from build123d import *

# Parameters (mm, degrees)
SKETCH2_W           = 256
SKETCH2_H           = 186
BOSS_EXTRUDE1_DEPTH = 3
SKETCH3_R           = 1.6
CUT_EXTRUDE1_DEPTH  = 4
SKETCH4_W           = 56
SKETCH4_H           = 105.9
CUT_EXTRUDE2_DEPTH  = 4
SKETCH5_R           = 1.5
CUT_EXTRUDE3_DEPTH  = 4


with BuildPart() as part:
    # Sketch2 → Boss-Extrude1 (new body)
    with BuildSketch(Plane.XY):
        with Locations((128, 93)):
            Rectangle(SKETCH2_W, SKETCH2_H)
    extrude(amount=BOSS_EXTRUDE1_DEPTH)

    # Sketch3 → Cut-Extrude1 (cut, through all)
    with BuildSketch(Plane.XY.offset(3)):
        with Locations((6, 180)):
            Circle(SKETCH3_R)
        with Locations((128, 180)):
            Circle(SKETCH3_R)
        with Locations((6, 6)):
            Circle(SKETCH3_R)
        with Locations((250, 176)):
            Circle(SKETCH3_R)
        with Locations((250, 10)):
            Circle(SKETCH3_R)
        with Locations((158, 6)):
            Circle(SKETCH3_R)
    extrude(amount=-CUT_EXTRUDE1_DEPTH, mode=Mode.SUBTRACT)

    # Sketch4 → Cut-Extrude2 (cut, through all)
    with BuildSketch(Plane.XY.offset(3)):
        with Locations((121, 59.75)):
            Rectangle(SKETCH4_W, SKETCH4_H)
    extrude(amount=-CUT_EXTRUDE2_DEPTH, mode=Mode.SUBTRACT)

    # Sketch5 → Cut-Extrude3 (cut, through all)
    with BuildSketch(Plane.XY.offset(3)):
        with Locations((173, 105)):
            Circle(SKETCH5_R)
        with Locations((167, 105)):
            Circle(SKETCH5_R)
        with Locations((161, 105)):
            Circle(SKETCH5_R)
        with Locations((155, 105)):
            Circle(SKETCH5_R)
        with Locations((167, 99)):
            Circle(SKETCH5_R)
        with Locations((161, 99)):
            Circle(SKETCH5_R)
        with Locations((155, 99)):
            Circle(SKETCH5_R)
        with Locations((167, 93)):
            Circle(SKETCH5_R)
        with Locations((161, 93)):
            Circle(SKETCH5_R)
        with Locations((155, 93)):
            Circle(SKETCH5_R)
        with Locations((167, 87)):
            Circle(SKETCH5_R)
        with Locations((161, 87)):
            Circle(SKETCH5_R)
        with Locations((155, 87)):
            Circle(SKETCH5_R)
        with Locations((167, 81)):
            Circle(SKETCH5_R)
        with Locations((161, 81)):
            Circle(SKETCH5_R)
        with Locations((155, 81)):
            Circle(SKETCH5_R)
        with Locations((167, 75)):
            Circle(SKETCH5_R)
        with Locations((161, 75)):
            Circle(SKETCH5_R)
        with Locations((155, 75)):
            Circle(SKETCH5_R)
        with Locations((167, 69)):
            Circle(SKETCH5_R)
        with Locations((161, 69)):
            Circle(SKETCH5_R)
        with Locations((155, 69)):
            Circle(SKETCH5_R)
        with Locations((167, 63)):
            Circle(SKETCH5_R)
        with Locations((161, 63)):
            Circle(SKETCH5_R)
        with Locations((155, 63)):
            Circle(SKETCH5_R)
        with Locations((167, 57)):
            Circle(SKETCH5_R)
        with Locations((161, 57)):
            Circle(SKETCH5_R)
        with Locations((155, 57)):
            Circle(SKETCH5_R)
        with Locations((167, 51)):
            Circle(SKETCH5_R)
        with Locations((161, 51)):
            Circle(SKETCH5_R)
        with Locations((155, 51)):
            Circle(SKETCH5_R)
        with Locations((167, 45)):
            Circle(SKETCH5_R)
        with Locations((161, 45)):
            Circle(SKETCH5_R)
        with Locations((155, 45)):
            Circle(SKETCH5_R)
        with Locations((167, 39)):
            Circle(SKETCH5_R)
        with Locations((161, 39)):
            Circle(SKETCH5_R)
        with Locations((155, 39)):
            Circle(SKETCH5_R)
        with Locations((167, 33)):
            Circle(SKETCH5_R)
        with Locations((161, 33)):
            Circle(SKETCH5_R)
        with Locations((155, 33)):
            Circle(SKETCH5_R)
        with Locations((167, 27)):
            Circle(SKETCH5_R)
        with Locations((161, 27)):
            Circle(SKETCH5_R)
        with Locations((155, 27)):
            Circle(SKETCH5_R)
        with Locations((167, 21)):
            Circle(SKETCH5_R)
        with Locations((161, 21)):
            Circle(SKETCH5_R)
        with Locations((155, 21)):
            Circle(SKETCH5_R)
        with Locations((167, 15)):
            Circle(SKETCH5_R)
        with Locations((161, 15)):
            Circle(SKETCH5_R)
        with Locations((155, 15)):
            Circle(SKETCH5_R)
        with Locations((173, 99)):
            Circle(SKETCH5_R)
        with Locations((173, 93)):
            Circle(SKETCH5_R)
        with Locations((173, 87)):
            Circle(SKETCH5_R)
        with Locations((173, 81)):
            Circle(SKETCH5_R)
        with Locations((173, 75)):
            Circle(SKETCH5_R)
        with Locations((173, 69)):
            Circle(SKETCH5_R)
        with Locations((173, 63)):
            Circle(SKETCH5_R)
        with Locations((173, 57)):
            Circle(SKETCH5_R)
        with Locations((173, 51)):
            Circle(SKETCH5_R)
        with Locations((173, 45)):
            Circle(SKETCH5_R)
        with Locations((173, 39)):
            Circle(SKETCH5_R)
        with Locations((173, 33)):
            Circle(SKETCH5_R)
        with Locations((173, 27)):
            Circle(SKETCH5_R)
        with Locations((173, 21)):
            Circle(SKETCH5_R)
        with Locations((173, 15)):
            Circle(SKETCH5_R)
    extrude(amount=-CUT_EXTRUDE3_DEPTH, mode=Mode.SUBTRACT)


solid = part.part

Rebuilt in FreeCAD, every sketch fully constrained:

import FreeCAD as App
import Part
import Sketcher
from FreeCAD import Vector
Q = App.Units.Quantity


def add_polygon(sketch, points):
    """Adds a closed chain of lines whose ends are joined by coincident constraints."""
    first, n = sketch.GeometryCount, len(points)
    for a, b in zip(points, points[1:] + points[:1]):
        sketch.addGeometry(Part.LineSegment(App.Vector(*a, 0), App.Vector(*b, 0)), False)
    for i in range(n):
        sketch.addConstraint(Sketcher.Constraint("Coincident", first + i, 2, first + (i + 1) % n, 1))

doc = App.newDocument("Part")
body = doc.addObject("PartDesign::Body", "Body")

sketch1 = doc.addObject("Sketcher::SketchObject", "Sketch")
body.addObject(sketch1)
sketch1.AttachmentSupport = (doc.XY_Plane, [""])
sketch1.MapMode = "FlatFace"
add_polygon(sketch1, [(0, 186), (0, 0), (256, 0), (256, 186)])
sketch1.addConstraint([
    Sketcher.Constraint("Vertical", 0),
    Sketcher.Constraint("Horizontal", 1),
    Sketcher.Constraint("Vertical", 2),
    Sketcher.Constraint("Horizontal", 3),
    Sketcher.Constraint("Coincident", 0, 2, -1, 1),
    Sketcher.Constraint("DistanceX", 1, 1, 1, 2, Q("256 mm")),
    Sketcher.Constraint("DistanceY", 0, 2, 0, 1, Q("186 mm")),
])
pad1 = doc.addObject("PartDesign::Pad", "Pad")
body.addObject(pad1)
pad1.Profile = sketch1
pad1.Length = 3

sketch2 = doc.addObject("Sketcher::SketchObject", "Sketch001")
body.addObject(sketch2)
sketch2.AttachmentSupport = (doc.XY_Plane, [""])
sketch2.MapMode = "FlatFace"
sketch2.AttachmentOffset = App.Placement(Vector(0, 0, 3), App.Rotation())
sketch2.addGeometry([
    Part.Circle(Vector(6, 180, 0), Vector(0, 0, 1), 1.6),
    Part.Circle(Vector(128, 180, 0), Vector(0, 0, 1), 1.6),
    Part.Circle(Vector(6, 6, 0), Vector(0, 0, 1), 1.6),
    Part.Circle(Vector(250, 176, 0), Vector(0, 0, 1), 1.6),
    Part.Circle(Vector(250, 10, 0), Vector(0, 0, 1), 1.6),
    Part.Circle(Vector(158, 6, 0), Vector(0, 0, 1), 1.6),
], False)
sketch2.addConstraint([
    Sketcher.Constraint("Equal", 0, 1),
    Sketcher.Constraint("Equal", 1, 2),
    Sketcher.Constraint("Equal", 2, 3),
    Sketcher.Constraint("Equal", 3, 4),
    Sketcher.Constraint("Equal", 4, 5),
    Sketcher.Constraint("Horizontal", 0, 3, 1, 3),
    Sketcher.Constraint("Horizontal", 2, 3, 5, 3),
    Sketcher.Constraint("Vertical", 0, 3, 2, 3),
    Sketcher.Constraint("Vertical", 3, 3, 4, 3),
    Sketcher.Constraint("Diameter", 0, Q("3.2 mm")),
    Sketcher.Constraint("DistanceX", -1, 1, 0, 3, Q("6 mm")),
    Sketcher.Constraint("DistanceY", -1, 1, 0, 3, Q("180 mm")),
    Sketcher.Constraint("DistanceX", -1, 1, 1, 3, Q("128 mm")),
    Sketcher.Constraint("DistanceY", -1, 1, 2, 3, Q("6 mm")),
    Sketcher.Constraint("DistanceX", -1, 1, 3, 3, Q("250 mm")),
    Sketcher.Constraint("DistanceY", -1, 1, 3, 3, Q("176 mm")),
    Sketcher.Constraint("DistanceY", -1, 1, 4, 3, Q("10 mm")),
    Sketcher.Constraint("DistanceX", -1, 1, 5, 3, Q("158 mm")),
])
pocket1 = doc.addObject("PartDesign::Pocket", "Pocket")
body.addObject(pocket1)
pocket1.Profile = sketch2
pocket1.Type = "ThroughAll"

sketch3 = doc.addObject("Sketcher::SketchObject", "Sketch002")
body.addObject(sketch3)
sketch3.AttachmentSupport = (doc.XY_Plane, [""])
sketch3.MapMode = "FlatFace"
sketch3.AttachmentOffset = App.Placement(Vector(0, 0, 3), App.Rotation())
add_polygon(sketch3, [(93, 113), (93, 7), (149, 7), (149, 113)])
sketch3.addConstraint([
    Sketcher.Constraint("Vertical", 0),
    Sketcher.Constraint("Horizontal", 1),
    Sketcher.Constraint("Vertical", 2),
    Sketcher.Constraint("Horizontal", 3),
    Sketcher.Constraint("DistanceX", 1, 1, 1, 2, Q("56 mm")),
    Sketcher.Constraint("DistanceY", 0, 2, 0, 1, Q("105.9 mm")),
    Sketcher.Constraint("DistanceX", -1, 1, 0, 2, Q("93 mm")),
    Sketcher.Constraint("DistanceY", -1, 1, 0, 2, Q("6.8 mm")),
])
pocket2 = doc.addObject("PartDesign::Pocket", "Pocket001")
body.addObject(pocket2)
pocket2.Profile = sketch3
pocket2.Type = "ThroughAll"

sketch4 = doc.addObject("Sketcher::SketchObject", "Sketch003")
body.addObject(sketch4)
sketch4.AttachmentSupport = (doc.XY_Plane, [""])
sketch4.MapMode = "FlatFace"
sketch4.AttachmentOffset = App.Placement(Vector(0, 0, 3), App.Rotation())
sketch4.addGeometry([
    Part.Circle(Vector(173, 105, 0), Vector(0, 0, 1), 1.5),
    Part.Circle(Vector(167, 105, 0), Vector(0, 0, 1), 1.5),
    Part.Circle(Vector(161, 105, 0), Vector(0, 0, 1), 1.5),
    Part.Circle(Vector(155, 105, 0), Vector(0, 0, 1), 1.5),
    Part.Circle(Vector(167, 99, 0), Vector(0, 0, 1), 1.5),
    Part.Circle(Vector(161, 99, 0), Vector(0, 0, 1), 1.5),
    Part.Circle(Vector(155, 99, 0), Vector(0, 0, 1), 1.5),
    Part.Circle(Vector(167, 93, 0), Vector(0, 0, 1), 1.5),
    Part.Circle(Vector(161, 93, 0), Vector(0, 0, 1), 1.5),
    Part.Circle(Vector(155, 93, 0), Vector(0, 0, 1), 1.5),
    Part.Circle(Vector(167, 87, 0), Vector(0, 0, 1), 1.5),
    Part.Circle(Vector(161, 87, 0), Vector(0, 0, 1), 1.5),
    Part.Circle(Vector(155, 87, 0), Vector(0, 0, 1), 1.5),
    Part.Circle(Vector(167, 81, 0), Vector(0, 0, 1), 1.5),
    Part.Circle(Vector(161, 81, 0), Vector(0, 0, 1), 1.5),
    Part.Circle(Vector(155, 81, 0), Vector(0, 0, 1), 1.5),
    Part.Circle(Vector(167, 75, 0), Vector(0, 0, 1), 1.5),
    Part.Circle(Vector(161, 75, 0), Vector(0, 0, 1), 1.5),
    Part.Circle(Vector(155, 75, 0), Vector(0, 0, 1), 1.5),
    Part.Circle(Vector(167, 69, 0), Vector(0, 0, 1), 1.5),
    Part.Circle(Vector(161, 69, 0), Vector(0, 0, 1), 1.5),
    Part.Circle(Vector(155, 69, 0), Vector(0, 0, 1), 1.5),
    Part.Circle(Vector(167, 63, 0), Vector(0, 0, 1), 1.5),
    Part.Circle(Vector(161, 63, 0), Vector(0, 0, 1), 1.5),
    Part.Circle(Vector(155, 63, 0), Vector(0, 0, 1), 1.5),
    Part.Circle(Vector(167, 57, 0), Vector(0, 0, 1), 1.5),
    Part.Circle(Vector(161, 57, 0), Vector(0, 0, 1), 1.5),
    Part.Circle(Vector(155, 57, 0), Vector(0, 0, 1), 1.5),
    Part.Circle(Vector(167, 51, 0), Vector(0, 0, 1), 1.5),
    Part.Circle(Vector(161, 51, 0), Vector(0, 0, 1), 1.5),
    Part.Circle(Vector(155, 51, 0), Vector(0, 0, 1), 1.5),
    Part.Circle(Vector(167, 45, 0), Vector(0, 0, 1), 1.5),
    Part.Circle(Vector(161, 45, 0), Vector(0, 0, 1), 1.5),
    Part.Circle(Vector(155, 45, 0), Vector(0, 0, 1), 1.5),
    Part.Circle(Vector(167, 39, 0), Vector(0, 0, 1), 1.5),
    Part.Circle(Vector(161, 39, 0), Vector(0, 0, 1), 1.5),
    Part.Circle(Vector(155, 39, 0), Vector(0, 0, 1), 1.5),
    Part.Circle(Vector(167, 33, 0), Vector(0, 0, 1), 1.5),
    Part.Circle(Vector(161, 33, 0), Vector(0, 0, 1), 1.5),
    Part.Circle(Vector(155, 33, 0), Vector(0, 0, 1), 1.5),
    Part.Circle(Vector(167, 27, 0), Vector(0, 0, 1), 1.5),
    Part.Circle(Vector(161, 27, 0), Vector(0, 0, 1), 1.5),
    Part.Circle(Vector(155, 27, 0), Vector(0, 0, 1), 1.5),
    Part.Circle(Vector(167, 21, 0), Vector(0, 0, 1), 1.5),
    Part.Circle(Vector(161, 21, 0), Vector(0, 0, 1), 1.5),
    Part.Circle(Vector(155, 21, 0), Vector(0, 0, 1), 1.5),
    Part.Circle(Vector(167, 15, 0), Vector(0, 0, 1), 1.5),
    Part.Circle(Vector(161, 15, 0), Vector(0, 0, 1), 1.5),
    Part.Circle(Vector(155, 15, 0), Vector(0, 0, 1), 1.5),
    Part.Circle(Vector(173, 99, 0), Vector(0, 0, 1), 1.5),
    Part.Circle(Vector(173, 93, 0), Vector(0, 0, 1), 1.5),
    Part.Circle(Vector(173, 87, 0), Vector(0, 0, 1), 1.5),
    Part.Circle(Vector(173, 81, 0), Vector(0, 0, 1), 1.5),
    Part.Circle(Vector(173, 75, 0), Vector(0, 0, 1), 1.5),
    Part.Circle(Vector(173, 69, 0), Vector(0, 0, 1), 1.5),
    Part.Circle(Vector(173, 63, 0), Vector(0, 0, 1), 1.5),
    Part.Circle(Vector(173, 57, 0), Vector(0, 0, 1), 1.5),
    Part.Circle(Vector(173, 51, 0), Vector(0, 0, 1), 1.5),
    Part.Circle(Vector(173, 45, 0), Vector(0, 0, 1), 1.5),
    Part.Circle(Vector(173, 39, 0), Vector(0, 0, 1), 1.5),
    Part.Circle(Vector(173, 33, 0), Vector(0, 0, 1), 1.5),
    Part.Circle(Vector(173, 27, 0), Vector(0, 0, 1), 1.5),
    Part.Circle(Vector(173, 21, 0), Vector(0, 0, 1), 1.5),
    Part.Circle(Vector(173, 15, 0), Vector(0, 0, 1), 1.5),
], False)
sketch4.addConstraint([
    Sketcher.Constraint("Equal", 0, 1),
    Sketcher.Constraint("Equal", 1, 2),
    Sketcher.Constraint("Equal", 2, 3),
    Sketcher.Constraint("Equal", 3, 4),
    Sketcher.Constraint("Equal", 4, 5),
    Sketcher.Constraint("Equal", 5, 6),
    Sketcher.Constraint("Equal", 6, 7),
    Sketcher.Constraint("Equal", 7, 8),
    Sketcher.Constraint("Equal", 8, 9),
    Sketcher.Constraint("Equal", 9, 10),
    Sketcher.Constraint("Equal", 10, 11),
    Sketcher.Constraint("Equal", 11, 12),
    Sketcher.Constraint("Equal", 12, 13),
    Sketcher.Constraint("Equal", 13, 14),
    Sketcher.Constraint("Equal", 14, 15),
    Sketcher.Constraint("Equal", 15, 16),
    Sketcher.Constraint("Equal", 16, 17),
    Sketcher.Constraint("Equal", 17, 18),
    Sketcher.Constraint("Equal", 18, 19),
    Sketcher.Constraint("Equal", 19, 20),
    Sketcher.Constraint("Equal", 20, 21),
    Sketcher.Constraint("Equal", 21, 22),
    Sketcher.Constraint("Equal", 22, 23),
    Sketcher.Constraint("Equal", 23, 24),
    Sketcher.Constraint("Equal", 24, 25),
    Sketcher.Constraint("Equal", 25, 26),
    Sketcher.Constraint("Equal", 26, 27),
    Sketcher.Constraint("Equal", 27, 28),
    Sketcher.Constraint("Equal", 28, 29),
    Sketcher.Constraint("Equal", 29, 30),
    Sketcher.Constraint("Equal", 30, 31),
    Sketcher.Constraint("Equal", 31, 32),
    Sketcher.Constraint("Equal", 32, 33),
    Sketcher.Constraint("Equal", 33, 34),
    Sketcher.Constraint("Equal", 34, 35),
    Sketcher.Constraint("Equal", 35, 36),
    Sketcher.Constraint("Equal", 36, 37),
    Sketcher.Constraint("Equal", 37, 38),
    Sketcher.Constraint("Equal", 38, 39),
    Sketcher.Constraint("Equal", 39, 40),
    Sketcher.Constraint("Equal", 40, 41),
    Sketcher.Constraint("Equal", 41, 42),
    Sketcher.Constraint("Equal", 42, 43),
    Sketcher.Constraint("Equal", 43, 44),
    Sketcher.Constraint("Equal", 44, 45),
    Sketcher.Constraint("Equal", 45, 46),
    Sketcher.Constraint("Equal", 46, 47),
    Sketcher.Constraint("Equal", 47, 48),
    Sketcher.Constraint("Equal", 48, 49),
    Sketcher.Constraint("Equal", 49, 50),
    Sketcher.Constraint("Equal", 50, 51),
    Sketcher.Constraint("Equal", 51, 52),
    Sketcher.Constraint("Equal", 52, 53),
    Sketcher.Constraint("Equal", 53, 54),
    Sketcher.Constraint("Equal", 54, 55),
    Sketcher.Constraint("Equal", 55, 56),
    Sketcher.Constraint("Equal", 56, 57),
    Sketcher.Constraint("Equal", 57, 58),
    Sketcher.Constraint("Equal", 58, 59),
    Sketcher.Constraint("Equal", 59, 60),
    Sketcher.Constraint("Equal", 60, 61),
    Sketcher.Constraint("Equal", 61, 62),
    Sketcher.Constraint("Equal", 62, 63),
    Sketcher.Constraint("Horizontal", 0, 3, 1, 3),
    Sketcher.Constraint("Horizontal", 1, 3, 2, 3),
    Sketcher.Constraint("Horizontal", 2, 3, 3, 3),
    Sketcher.Constraint("Horizontal", 4, 3, 5, 3),
    Sketcher.Constraint("Horizontal", 5, 3, 6, 3),
    Sketcher.Constraint("Horizontal", 7, 3, 8, 3),
    Sketcher.Constraint("Horizontal", 8, 3, 9, 3),
    Sketcher.Constraint("Horizontal", 10, 3, 11, 3),
    Sketcher.Constraint("Horizontal", 11, 3, 12, 3),
    Sketcher.Constraint("Horizontal", 13, 3, 14, 3),
    Sketcher.Constraint("Horizontal", 14, 3, 15, 3),
    Sketcher.Constraint("Horizontal", 16, 3, 17, 3),
    Sketcher.Constraint("Horizontal", 17, 3, 18, 3),
    Sketcher.Constraint("Horizontal", 19, 3, 20, 3),
    Sketcher.Constraint("Horizontal", 20, 3, 21, 3),
    Sketcher.Constraint("Horizontal", 22, 3, 23, 3),
    Sketcher.Constraint("Horizontal", 23, 3, 24, 3),
    Sketcher.Constraint("Horizontal", 25, 3, 26, 3),
    Sketcher.Constraint("Horizontal", 26, 3, 27, 3),
    Sketcher.Constraint("Horizontal", 28, 3, 29, 3),
    Sketcher.Constraint("Horizontal", 29, 3, 30, 3),
    Sketcher.Constraint("Horizontal", 31, 3, 32, 3),
    Sketcher.Constraint("Horizontal", 32, 3, 33, 3),
    Sketcher.Constraint("Horizontal", 34, 3, 35, 3),
    Sketcher.Constraint("Horizontal", 35, 3, 36, 3),
    Sketcher.Constraint("Horizontal", 37, 3, 38, 3),
    Sketcher.Constraint("Horizontal", 38, 3, 39, 3),
    Sketcher.Constraint("Horizontal", 40, 3, 41, 3),
    Sketcher.Constraint("Horizontal", 41, 3, 42, 3),
    Sketcher.Constraint("Horizontal", 43, 3, 44, 3),
    Sketcher.Constraint("Horizontal", 44, 3, 45, 3),
    Sketcher.Constraint("Horizontal", 46, 3, 47, 3),
    Sketcher.Constraint("Horizontal", 47, 3, 48, 3),
    Sketcher.Constraint("Horizontal", 6, 3, 49, 3),
    Sketcher.Constraint("Horizontal", 9, 3, 50, 3),
    Sketcher.Constraint("Horizontal", 12, 3, 51, 3),
    Sketcher.Constraint("Horizontal", 15, 3, 52, 3),
    Sketcher.Constraint("Horizontal", 18, 3, 53, 3),
    Sketcher.Constraint("Horizontal", 21, 3, 54, 3),
    Sketcher.Constraint("Horizontal", 24, 3, 55, 3),
    Sketcher.Constraint("Horizontal", 27, 3, 56, 3),
    Sketcher.Constraint("Horizontal", 30, 3, 57, 3),
    Sketcher.Constraint("Horizontal", 33, 3, 58, 3),
    Sketcher.Constraint("Horizontal", 36, 3, 59, 3),
    Sketcher.Constraint("Horizontal", 39, 3, 60, 3),
    Sketcher.Constraint("Horizontal", 42, 3, 61, 3),
    Sketcher.Constraint("Horizontal", 45, 3, 62, 3),
    Sketcher.Constraint("Horizontal", 48, 3, 63, 3),
    Sketcher.Constraint("Vertical", 1, 3, 4, 3),
    Sketcher.Constraint("Vertical", 2, 3, 5, 3),
    Sketcher.Constraint("Vertical", 3, 3, 6, 3),
    Sketcher.Constraint("Vertical", 4, 3, 7, 3),
    Sketcher.Constraint("Vertical", 5, 3, 8, 3),
    Sketcher.Constraint("Vertical", 6, 3, 9, 3),
    Sketcher.Constraint("Vertical", 7, 3, 10, 3),
    Sketcher.Constraint("Vertical", 8, 3, 11, 3),
    Sketcher.Constraint("Vertical", 9, 3, 12, 3),
    Sketcher.Constraint("Vertical", 10, 3, 13, 3),
    Sketcher.Constraint("Vertical", 11, 3, 14, 3),
    Sketcher.Constraint("Vertical", 12, 3, 15, 3),
    Sketcher.Constraint("Vertical", 13, 3, 16, 3),
    Sketcher.Constraint("Vertical", 14, 3, 17, 3),
    Sketcher.Constraint("Vertical", 15, 3, 18, 3),
    Sketcher.Constraint("Vertical", 16, 3, 19, 3),
    Sketcher.Constraint("Vertical", 17, 3, 20, 3),
    Sketcher.Constraint("Vertical", 18, 3, 21, 3),
    Sketcher.Constraint("Vertical", 19, 3, 22, 3),
    Sketcher.Constraint("Vertical", 20, 3, 23, 3),
    Sketcher.Constraint("Vertical", 21, 3, 24, 3),
    Sketcher.Constraint("Vertical", 22, 3, 25, 3),
    Sketcher.Constraint("Vertical", 23, 3, 26, 3),
    Sketcher.Constraint("Vertical", 24, 3, 27, 3),
    Sketcher.Constraint("Vertical", 25, 3, 28, 3),
    Sketcher.Constraint("Vertical", 26, 3, 29, 3),
    Sketcher.Constraint("Vertical", 27, 3, 30, 3),
    Sketcher.Constraint("Vertical", 28, 3, 31, 3),
    Sketcher.Constraint("Vertical", 29, 3, 32, 3),
    Sketcher.Constraint("Vertical", 30, 3, 33, 3),
    Sketcher.Constraint("Vertical", 31, 3, 34, 3),
    Sketcher.Constraint("Vertical", 32, 3, 35, 3),
    Sketcher.Constraint("Vertical", 33, 3, 36, 3),
    Sketcher.Constraint("Vertical", 34, 3, 37, 3),
    Sketcher.Constraint("Vertical", 35, 3, 38, 3),
    Sketcher.Constraint("Vertical", 36, 3, 39, 3),
    Sketcher.Constraint("Vertical", 37, 3, 40, 3),
    Sketcher.Constraint("Vertical", 38, 3, 41, 3),
    Sketcher.Constraint("Vertical", 39, 3, 42, 3),
    Sketcher.Constraint("Vertical", 40, 3, 43, 3),
    Sketcher.Constraint("Vertical", 41, 3, 44, 3),
    Sketcher.Constraint("Vertical", 42, 3, 45, 3),
    Sketcher.Constraint("Vertical", 43, 3, 46, 3),
    Sketcher.Constraint("Vertical", 44, 3, 47, 3),
    Sketcher.Constraint("Vertical", 45, 3, 48, 3),
    Sketcher.Constraint("Vertical", 0, 3, 49, 3),
    Sketcher.Constraint("Vertical", 49, 3, 50, 3),
    Sketcher.Constraint("Vertical", 50, 3, 51, 3),
    Sketcher.Constraint("Vertical", 51, 3, 52, 3),
    Sketcher.Constraint("Vertical", 52, 3, 53, 3),
    Sketcher.Constraint("Vertical", 53, 3, 54, 3),
    Sketcher.Constraint("Vertical", 54, 3, 55, 3),
    Sketcher.Constraint("Vertical", 55, 3, 56, 3),
    Sketcher.Constraint("Vertical", 56, 3, 57, 3),
    Sketcher.Constraint("Vertical", 57, 3, 58, 3),
    Sketcher.Constraint("Vertical", 58, 3, 59, 3),
    Sketcher.Constraint("Vertical", 59, 3, 60, 3),
    Sketcher.Constraint("Vertical", 60, 3, 61, 3),
    Sketcher.Constraint("Vertical", 61, 3, 62, 3),
    Sketcher.Constraint("Vertical", 62, 3, 63, 3),
    Sketcher.Constraint("Diameter", 0, Q("3 mm")),
    Sketcher.Constraint("DistanceX", -1, 1, 0, 3, Q("173 mm")),
    Sketcher.Constraint("DistanceY", -1, 1, 0, 3, Q("105 mm")),
    Sketcher.Constraint("DistanceX", -1, 1, 1, 3, Q("167 mm")),
    Sketcher.Constraint("DistanceX", -1, 1, 2, 3, Q("161 mm")),
    Sketcher.Constraint("DistanceX", -1, 1, 3, 3, Q("155 mm")),
    Sketcher.Constraint("DistanceY", -1, 1, 4, 3, Q("99 mm")),
    Sketcher.Constraint("DistanceY", -1, 1, 7, 3, Q("93 mm")),
    Sketcher.Constraint("DistanceY", -1, 1, 10, 3, Q("87 mm")),
    Sketcher.Constraint("DistanceY", -1, 1, 13, 3, Q("81 mm")),
    Sketcher.Constraint("DistanceY", -1, 1, 16, 3, Q("75 mm")),
    Sketcher.Constraint("DistanceY", -1, 1, 19, 3, Q("69 mm")),
    Sketcher.Constraint("DistanceY", -1, 1, 22, 3, Q("63 mm")),
    Sketcher.Constraint("DistanceY", -1, 1, 25, 3, Q("57 mm")),
    Sketcher.Constraint("DistanceY", -1, 1, 28, 3, Q("51 mm")),
    Sketcher.Constraint("DistanceY", -1, 1, 31, 3, Q("45 mm")),
    Sketcher.Constraint("DistanceY", -1, 1, 34, 3, Q("39 mm")),
    Sketcher.Constraint("DistanceY", -1, 1, 37, 3, Q("33 mm")),
    Sketcher.Constraint("DistanceY", -1, 1, 40, 3, Q("27 mm")),
    Sketcher.Constraint("DistanceY", -1, 1, 43, 3, Q("21 mm")),
    Sketcher.Constraint("DistanceY", -1, 1, 46, 3, Q("15 mm")),
])
pocket3 = doc.addObject("PartDesign::Pocket", "Pocket002")
body.addObject(pocket3)
pocket3.Profile = sketch4
pocket3.Type = "ThroughAll"

doc.recompute()
